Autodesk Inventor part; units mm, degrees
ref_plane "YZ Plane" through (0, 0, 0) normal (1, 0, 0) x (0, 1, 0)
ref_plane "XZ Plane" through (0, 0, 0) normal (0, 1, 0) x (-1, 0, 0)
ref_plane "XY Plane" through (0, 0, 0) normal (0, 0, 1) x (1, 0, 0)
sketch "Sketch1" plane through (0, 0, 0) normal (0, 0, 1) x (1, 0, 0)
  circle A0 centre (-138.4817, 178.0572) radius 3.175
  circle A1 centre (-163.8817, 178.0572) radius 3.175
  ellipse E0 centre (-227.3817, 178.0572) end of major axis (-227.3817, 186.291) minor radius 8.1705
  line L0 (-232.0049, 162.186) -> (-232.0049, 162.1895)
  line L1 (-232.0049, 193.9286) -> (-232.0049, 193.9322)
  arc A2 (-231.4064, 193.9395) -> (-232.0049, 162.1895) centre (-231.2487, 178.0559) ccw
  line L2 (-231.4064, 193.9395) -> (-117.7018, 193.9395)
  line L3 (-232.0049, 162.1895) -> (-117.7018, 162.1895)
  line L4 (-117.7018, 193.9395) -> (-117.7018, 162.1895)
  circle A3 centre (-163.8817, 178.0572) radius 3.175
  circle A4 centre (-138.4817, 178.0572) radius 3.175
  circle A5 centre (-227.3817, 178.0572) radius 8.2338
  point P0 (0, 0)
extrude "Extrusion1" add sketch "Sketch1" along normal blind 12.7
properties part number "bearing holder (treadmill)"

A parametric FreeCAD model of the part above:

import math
import FreeCAD as App
import Part
import Sketcher
Q = App.Units.Quantity

doc = App.newDocument("Part")
params = doc.addObject("Spreadsheet::Sheet", "Params")
for row, (alias, value) in enumerate([
    ("sketch1_diameter", "0.25 in"),
    ("sketch1_height", "1.25 in"),
    ("pad1_length", "0.5 in"),
], start=1):
    params.set(f"A{row}", alias)
    params.set(f"B{row}", "=" + value)
    params.setAlias(f"B{row}", alias)

body = doc.addObject("PartDesign::Body", "Body")

sketch1 = body.newObject("Sketcher::SketchObject", "Sketch")
sketch1.AttachmentSupport = (doc.getObject("XY_Plane"), [""])
sketch1.MapMode = "FlatFace"
sketch1.addGeometry([
    Part.LineSegment(App.Vector(-117.7, 193.9, 0), App.Vector(-231.4, 193.9, 0)),
    Part.ArcOfCircle(Part.Circle(App.Vector(-231.2, 178.1, 0), App.Vector(0, 0, 1), 15.9), math.radians(91), math.radians(267)),
    Part.LineSegment(App.Vector(-232, 162.2, 0), App.Vector(-117.7, 162.2, 0)),
    Part.LineSegment(App.Vector(-117.7, 162.2, 0), App.Vector(-117.7, 193.9, 0)),
    Part.Circle(App.Vector(-227.4, 178.1, 0), App.Vector(0, 0, 1), 8.2),
    Part.Circle(App.Vector(-163.9, 178.1, 0), App.Vector(0, 0, 1), 3.2),
    Part.Circle(App.Vector(-138.5, 178.1, 0), App.Vector(0, 0, 1), 3.2),
], False)
sketch1.addConstraint([
    Sketcher.Constraint("Coincident", 0, 2, 1, 1),
    Sketcher.Constraint("Coincident", 1, 2, 2, 1),
    Sketcher.Constraint("Coincident", 2, 2, 3, 1),
    Sketcher.Constraint("Coincident", 3, 2, 0, 1),
    Sketcher.Constraint("Horizontal", 0),
    Sketcher.Constraint("Horizontal", 2),
    Sketcher.Constraint("Vertical", 3),
    Sketcher.Constraint("Equal", 5, 6),
    Sketcher.Constraint("Horizontal", 4, 3, 5, 3),
    Sketcher.Constraint("Horizontal", 5, 3, 6, 3),
    Sketcher.Constraint("Diameter", 5, Q("0.25 in")),
    Sketcher.Constraint("DistanceX", 5, 3, 6, 3, Q("1 in")),
    Sketcher.Constraint("DistanceY", 3, 1, 3, 2, Q("1.25 in")),
    Sketcher.Constraint("DistanceX", 4, 3, 5, 3, Q("2.5 in")),
    Sketcher.Constraint("Diameter", 4, 16.4676),
    Sketcher.Constraint("Radius", 1, 15.8844),
    Sketcher.Constraint("DistanceX", 0, 2, 0, 1, 113.7046),
    Sketcher.Constraint("DistanceX", 2, 1, 2, 2, 114.303),
    Sketcher.Constraint("DistanceX", 0, 2, -1, 1, Q("9.1105 in")),
    Sketcher.Constraint("DistanceY", 1, 2, 4, 3, Q("0.6247 in")),
    Sketcher.Constraint("DistanceX", 6, 3, 2, 2, Q("0.8181 in")),
    Sketcher.Constraint("DistanceY", -1, 1, 1, 3, 178.056),
])
sketch1.setExpression("Constraints[10]", "Params.sketch1_diameter")
sketch1.setExpression("Constraints[12]", "Params.sketch1_height")
pad1 = body.newObject("PartDesign::Pad", "Pad")
pad1.Profile = sketch1
pad1.setExpression("Length", "Params.pad1_length")

doc.recompute()
